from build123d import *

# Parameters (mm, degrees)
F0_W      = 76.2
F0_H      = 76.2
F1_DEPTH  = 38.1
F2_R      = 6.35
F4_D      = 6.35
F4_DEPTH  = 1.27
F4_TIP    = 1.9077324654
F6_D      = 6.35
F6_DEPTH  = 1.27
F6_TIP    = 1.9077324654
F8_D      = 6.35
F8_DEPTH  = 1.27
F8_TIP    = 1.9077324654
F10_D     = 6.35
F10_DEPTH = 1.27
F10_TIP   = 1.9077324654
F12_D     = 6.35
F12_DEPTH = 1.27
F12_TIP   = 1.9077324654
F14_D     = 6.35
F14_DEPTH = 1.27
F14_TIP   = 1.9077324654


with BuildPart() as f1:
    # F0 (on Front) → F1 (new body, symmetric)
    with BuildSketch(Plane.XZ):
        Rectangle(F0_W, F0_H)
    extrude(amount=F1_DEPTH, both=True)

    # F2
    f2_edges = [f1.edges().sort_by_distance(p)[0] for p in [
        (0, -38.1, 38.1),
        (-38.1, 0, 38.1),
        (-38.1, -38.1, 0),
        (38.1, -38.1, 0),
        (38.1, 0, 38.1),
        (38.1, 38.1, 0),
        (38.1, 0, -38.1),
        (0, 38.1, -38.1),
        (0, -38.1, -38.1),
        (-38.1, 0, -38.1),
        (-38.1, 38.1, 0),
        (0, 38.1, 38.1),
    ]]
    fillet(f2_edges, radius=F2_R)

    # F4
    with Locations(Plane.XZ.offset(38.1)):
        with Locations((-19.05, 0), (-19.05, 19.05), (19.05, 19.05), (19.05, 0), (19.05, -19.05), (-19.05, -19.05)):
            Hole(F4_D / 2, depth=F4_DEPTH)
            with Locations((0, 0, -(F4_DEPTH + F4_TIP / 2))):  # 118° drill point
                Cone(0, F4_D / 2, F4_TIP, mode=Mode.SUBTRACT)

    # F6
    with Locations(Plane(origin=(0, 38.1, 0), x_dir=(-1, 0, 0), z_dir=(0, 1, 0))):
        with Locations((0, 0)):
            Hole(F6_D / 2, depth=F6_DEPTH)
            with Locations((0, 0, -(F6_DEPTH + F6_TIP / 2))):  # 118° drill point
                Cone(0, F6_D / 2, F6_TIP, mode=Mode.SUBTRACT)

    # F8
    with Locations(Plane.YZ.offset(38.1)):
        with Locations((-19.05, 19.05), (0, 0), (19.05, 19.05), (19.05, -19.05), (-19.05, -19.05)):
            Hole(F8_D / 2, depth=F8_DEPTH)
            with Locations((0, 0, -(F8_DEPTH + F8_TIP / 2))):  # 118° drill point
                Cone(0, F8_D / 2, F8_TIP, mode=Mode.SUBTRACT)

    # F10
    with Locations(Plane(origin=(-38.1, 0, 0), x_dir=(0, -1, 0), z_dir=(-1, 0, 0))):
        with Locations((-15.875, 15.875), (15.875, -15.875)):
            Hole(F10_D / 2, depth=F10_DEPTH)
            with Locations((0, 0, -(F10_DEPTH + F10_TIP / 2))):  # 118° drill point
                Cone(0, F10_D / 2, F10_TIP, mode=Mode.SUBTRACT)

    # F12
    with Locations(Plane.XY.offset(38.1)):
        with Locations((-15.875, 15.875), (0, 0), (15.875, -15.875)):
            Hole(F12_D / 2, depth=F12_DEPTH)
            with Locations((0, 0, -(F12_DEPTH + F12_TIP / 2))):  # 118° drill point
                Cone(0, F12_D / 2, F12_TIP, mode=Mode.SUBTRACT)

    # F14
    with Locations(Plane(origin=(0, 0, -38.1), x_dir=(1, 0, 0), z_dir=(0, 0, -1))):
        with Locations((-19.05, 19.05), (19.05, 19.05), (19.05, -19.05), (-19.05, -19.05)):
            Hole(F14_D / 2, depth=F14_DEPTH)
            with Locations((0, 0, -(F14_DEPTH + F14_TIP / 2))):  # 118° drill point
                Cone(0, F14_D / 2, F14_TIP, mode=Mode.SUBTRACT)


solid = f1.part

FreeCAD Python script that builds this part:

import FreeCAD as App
import Part
import Sketcher
Q = App.Units.Quantity


def add_polygon(sketch, points):
    """Adds a closed chain of lines whose ends are joined by coincident constraints."""
    first, n = sketch.GeometryCount, len(points)
    for a, b in zip(points, points[1:] + points[:1]):
        sketch.addGeometry(Part.LineSegment(App.Vector(*a, 0), App.Vector(*b, 0)), False)
    for i in range(n):
        sketch.addConstraint(Sketcher.Constraint("Coincident", first + i, 2, first + (i + 1) % n, 1))

doc = App.newDocument("Part")
params = doc.addObject("Spreadsheet::Sheet", "Params")
for row, (alias, value) in enumerate([
    ("sketch1_width", "3 in"),
    ("pad1_length", "3 in"),
    ("fillet_radius", "0.25 in"),
    ("sketch2_diameter", "0.25 in"),
    ("hole_diameter", "0.25 in"),
    ("hole_depth", "0.05 in"),
    ("sketch3_diameter", "0.25 in"),
    ("hole2_diameter", "0.25 in"),
    ("hole2_depth", "0.05 in"),
    ("sketch4_diameter", "0.25 in"),
    ("hole3_diameter", "0.25 in"),
    ("hole3_depth", "0.05 in"),
    ("sketch5_diameter", "0.25 in"),
    ("hole4_diameter", "0.25 in"),
    ("hole4_depth", "0.05 in"),
    ("sketch6_diameter", "0.25 in"),
    ("hole5_diameter", "0.25 in"),
    ("hole5_depth", "0.05 in"),
    ("sketch7_diameter", "0.25 in"),
    ("hole6_diameter", "0.25 in"),
    ("hole6_depth", "0.05 in"),
], start=1):
    params.set(f"A{row}", alias)
    params.set(f"B{row}", "=" + value)
    params.setAlias(f"B{row}", alias)

body = doc.addObject("PartDesign::Body", "Body")

sketch1 = body.newObject("Sketcher::SketchObject", "Sketch")
sketch1.AttachmentSupport = (doc.getObject("XZ_Plane"), [""])
sketch1.MapMode = "FlatFace"
add_polygon(sketch1, [(-38, 38), (-38, -38), (38, -38), (38, 38)])
sketch1.addConstraint([
    Sketcher.Constraint("Vertical", 0),
    Sketcher.Constraint("Horizontal", 1),
    Sketcher.Constraint("Vertical", 2),
    Sketcher.Constraint("Horizontal", 3),
    Sketcher.Constraint("Symmetric", 0, 2, 2, 2, -1, 1),
    Sketcher.Constraint("Equal", 3, 0),
    Sketcher.Constraint("DistanceX", 1, 1, 1, 2, Q("3 in")),
])
sketch1.setExpression("Constraints[10]", "Params.sketch1_width")
pad1 = body.newObject("PartDesign::Pad", "Pad")
pad1.Profile = sketch1
pad1.setExpression("Length", "Params.pad1_length")
pad1.Midplane = True
doc.recompute()

fillet = body.newObject("PartDesign::Fillet", "Fillet")
fillet.Base = (pad1, ["Edge1"])
fillet.UseAllEdges = True
fillet.setExpression("Radius", "Params.fillet_radius")

sketch2 = body.newObject("Sketcher::SketchObject", "Sketch001")
sketch2.AttachmentSupport = (doc.getObject("XZ_Plane"), [""])
sketch2.MapMode = "FlatFace"
sketch2.AttachmentOffset = App.Placement(App.Vector(0, 0, 1.5 * 25.4), App.Rotation())
sketch2.addGeometry([
    Part.Circle(App.Vector(-19.1, 0, 0), App.Vector(0, 0, 1), 3.2),
    Part.Circle(App.Vector(-19.1, 19.1, 0), App.Vector(0, 0, 1), 3.2),
    Part.Circle(App.Vector(19.1, 19.1, 0), App.Vector(0, 0, 1), 3.2),
    Part.Circle(App.Vector(19.1, 0, 0), App.Vector(0, 0, 1), 3.2),
    Part.Circle(App.Vector(19.1, -19.1, 0), App.Vector(0, 0, 1), 3.2),
    Part.Circle(App.Vector(-19.1, -19.1, 0), App.Vector(0, 0, 1), 3.2),
], False)
sketch2.addConstraint([
    Sketcher.Constraint("Equal", 0, 1),
    Sketcher.Constraint("Equal", 1, 2),
    Sketcher.Constraint("Equal", 2, 3),
    Sketcher.Constraint("Equal", 3, 4),
    Sketcher.Constraint("Equal", 4, 5),
    Sketcher.Constraint("Symmetric", 0, 3, 3, 3, -1, 1),
    Sketcher.Constraint("Symmetric", 1, 3, 4, 3, -1, 1),
    Sketcher.Constraint("Symmetric", 2, 3, 5, 3, -1, 1),
    Sketcher.Constraint("Symmetric", 1, 3, 2, 3, -2),
    Sketcher.Constraint("PointOnObject", 0, 3, -1),
    Sketcher.Constraint("Vertical", 0, 3, 1, 3),
    Sketcher.Constraint("Diameter", 0, Q("0.25 in")),
    Sketcher.Constraint("DistanceX", 1, 3, 2, 3, Q("1.5 in")),
    Sketcher.Constraint("DistanceY", 4, 3, 2, 3, Q("1.5 in")),
])
sketch2.setExpression("Constraints[11]", "Params.sketch2_diameter")
doc.recompute()
hole = body.newObject("PartDesign::Hole", "Hole")
hole.Profile = sketch2
hole.ThreadType = "None"
hole.setExpression("Diameter", "Params.hole_diameter")
hole.DepthType = "Dimension"
hole.setExpression("Depth", "Params.hole_depth")
hole.DrillPoint = "Angled"
hole.DrillPointAngle = 118

sketch3 = body.newObject("Sketcher::SketchObject", "Sketch002")
sketch3.AttachmentSupport = (doc.getObject("XZ_Plane"), [""])
sketch3.MapMode = "FlatFace"
sketch3.AttachmentOffset = App.Placement(App.Vector(0, 0, -1.5 * 25.4), App.Rotation())
sketch3.addGeometry(Part.Circle(App.Vector(0, 0, 0), App.Vector(0, 0, 1), 3.2), False)
sketch3.addConstraint([
    Sketcher.Constraint("Coincident", 0, 3, -1, 1),
    Sketcher.Constraint("Diameter", 0, Q("0.25 in")),
])
sketch3.setExpression("Constraints[1]", "Params.sketch3_diameter")
doc.recompute()
hole2 = body.newObject("PartDesign::Hole", "Hole001")
hole2.Profile = sketch3
hole2.ThreadType = "None"
hole2.setExpression("Diameter", "Params.hole2_diameter")
hole2.DepthType = "Dimension"
hole2.setExpression("Depth", "Params.hole2_depth")
hole2.DrillPoint = "Angled"
hole2.DrillPointAngle = 118
hole2.Reversed = True

sketch4 = body.newObject("Sketcher::SketchObject", "Sketch003")
sketch4.AttachmentSupport = (doc.getObject("YZ_Plane"), [""])
sketch4.MapMode = "FlatFace"
sketch4.AttachmentOffset = App.Placement(App.Vector(0, 0, 1.5 * 25.4), App.Rotation())
sketch4.addGeometry([
    Part.Circle(App.Vector(-19.1, 19.1, 0), App.Vector(0, 0, 1), 3.2),
    Part.Circle(App.Vector(0, 0, 0), App.Vector(0, 0, 1), 3.2),
    Part.Circle(App.Vector(19.1, 19.1, 0), App.Vector(0, 0, 1), 3.2),
    Part.Circle(App.Vector(19.1, -19.1, 0), App.Vector(0, 0, 1), 3.2),
    Part.Circle(App.Vector(-19.1, -19.1, 0), App.Vector(0, 0, 1), 3.2),
], False)
sketch4.addConstraint([
    Sketcher.Constraint("Coincident", 1, 3, -1, 1),
    Sketcher.Constraint("Equal", 0, 1),
    Sketcher.Constraint("Equal", 1, 2),
    Sketcher.Constraint("Equal", 2, 3),
    Sketcher.Constraint("Equal", 3, 4),
    Sketcher.Constraint("Symmetric", 0, 3, 3, 3, -1, 1),
    Sketcher.Constraint("Symmetric", 2, 3, 4, 3, -1, 1),
    Sketcher.Constraint("Symmetric", 0, 3, 2, 3, -2),
    Sketcher.Constraint("Diameter", 0, Q("0.25 in")),
    Sketcher.Constraint("DistanceX", 0, 3, 2, 3, Q("1.5 in")),
    Sketcher.Constraint("DistanceY", 3, 3, 2, 3, Q("1.5 in")),
])
sketch4.setExpression("Constraints[8]", "Params.sketch4_diameter")
doc.recompute()
hole3 = body.newObject("PartDesign::Hole", "Hole002")
hole3.Profile = sketch4
hole3.ThreadType = "None"
hole3.setExpression("Diameter", "Params.hole3_diameter")
hole3.DepthType = "Dimension"
hole3.setExpression("Depth", "Params.hole3_depth")
hole3.DrillPoint = "Angled"
hole3.DrillPointAngle = 118

sketch5 = body.newObject("Sketcher::SketchObject", "Sketch004")
sketch5.AttachmentSupport = (doc.getObject("YZ_Plane"), [""])
sketch5.MapMode = "FlatFace"
sketch5.AttachmentOffset = App.Placement(App.Vector(0, 0, -1.5 * 25.4), App.Rotation())
sketch5.addGeometry([
    Part.Circle(App.Vector(15.9, 15.9, 0), App.Vector(0, 0, 1), 3.2),
    Part.Circle(App.Vector(-15.9, -15.9, 0), App.Vector(0, 0, 1), 3.2),
], False)
sketch5.addConstraint([
    Sketcher.Constraint("Equal", 0, 1),
    Sketcher.Constraint("Symmetric", 0, 3, 1, 3, -1, 1),
    Sketcher.Constraint("Diameter", 0, Q("0.25 in")),
    Sketcher.Constraint("DistanceX", 1, 3, 0, 3, Q("1.25 in")),
    Sketcher.Constraint("DistanceY", 1, 3, 0, 3, Q("1.25 in")),
])
sketch5.setExpression("Constraints[2]", "Params.sketch5_diameter")
doc.recompute()
hole4 = body.newObject("PartDesign::Hole", "Hole003")
hole4.Profile = sketch5
hole4.ThreadType = "None"
hole4.setExpression("Diameter", "Params.hole4_diameter")
hole4.DepthType = "Dimension"
hole4.setExpression("Depth", "Params.hole4_depth")
hole4.DrillPoint = "Angled"
hole4.DrillPointAngle = 118
hole4.Reversed = True

sketch6 = body.newObject("Sketcher::SketchObject", "Sketch005")
sketch6.AttachmentSupport = (doc.getObject("XY_Plane"), [""])
sketch6.MapMode = "FlatFace"
sketch6.AttachmentOffset = App.Placement(App.Vector(0, 0, 1.5 * 25.4), App.Rotation())
sketch6.addGeometry([
    Part.Circle(App.Vector(-15.9, 15.9, 0), App.Vector(0, 0, 1), 3.2),
    Part.Circle(App.Vector(0, 0, 0), App.Vector(0, 0, 1), 3.2),
    Part.Circle(App.Vector(15.9, -15.9, 0), App.Vector(0, 0, 1), 3.2),
], False)
sketch6.addConstraint([
    Sketcher.Constraint("Coincident", 1, 3, -1, 1),
    Sketcher.Constraint("Equal", 0, 1),
    Sketcher.Constraint("Equal", 1, 2),
    Sketcher.Constraint("Symmetric", 0, 3, 2, 3, -1, 1),
    Sketcher.Constraint("Diameter", 0, Q("0.25 in")),
    Sketcher.Constraint("DistanceX", 0, 3, 2, 3, Q("1.25 in")),
    Sketcher.Constraint("DistanceY", 2, 3, 0, 3, Q("1.25 in")),
])
sketch6.setExpression("Constraints[4]", "Params.sketch6_diameter")
doc.recompute()
hole5 = body.newObject("PartDesign::Hole", "Hole004")
hole5.Profile = sketch6
hole5.ThreadType = "None"
hole5.setExpression("Diameter", "Params.hole5_diameter")
hole5.DepthType = "Dimension"
hole5.setExpression("Depth", "Params.hole5_depth")
hole5.DrillPoint = "Angled"
hole5.DrillPointAngle = 118

sketch7 = body.newObject("Sketcher::SketchObject", "Sketch006")
sketch7.AttachmentSupport = (doc.getObject("XY_Plane"), [""])
sketch7.MapMode = "FlatFace"
sketch7.AttachmentOffset = App.Placement(App.Vector(0, 0, -1.5 * 25.4), App.Rotation())
sketch7.addGeometry([
    Part.Circle(App.Vector(-19.1, -19.1, 0), App.Vector(0, 0, 1), 3.2),
    Part.Circle(App.Vector(19.1, -19.1, 0), App.Vector(0, 0, 1), 3.2),
    Part.Circle(App.Vector(19.1, 19.1, 0), App.Vector(0, 0, 1), 3.2),
    Part.Circle(App.Vector(-19.1, 19.1, 0), App.Vector(0, 0, 1), 3.2),
], False)
sketch7.addConstraint([
    Sketcher.Constraint("Equal", 0, 1),
    Sketcher.Constraint("Equal", 1, 2),
    Sketcher.Constraint("Equal", 2, 3),
    Sketcher.Constraint("Symmetric", 0, 3, 2, 3, -1, 1),
    Sketcher.Constraint("Symmetric", 1, 3, 3, 3, -1, 1),
    Sketcher.Constraint("Symmetric", 0, 3, 1, 3, -2),
    Sketcher.Constraint("Diameter", 0, Q("0.25 in")),
    Sketcher.Constraint("DistanceX", 0, 3, 1, 3, Q("1.5 in")),
    Sketcher.Constraint("DistanceY", 1, 3, 2, 3, Q("1.5 in")),
])
sketch7.setExpression("Constraints[6]", "Params.sketch7_diameter")
doc.recompute()
hole6 = body.newObject("PartDesign::Hole", "Hole005")
hole6.Profile = sketch7
hole6.ThreadType = "None"
hole6.setExpression("Diameter", "Params.hole6_diameter")
hole6.DepthType = "Dimension"
hole6.setExpression("Depth", "Params.hole6_depth")
hole6.DrillPoint = "Angled"
hole6.DrillPointAngle = 118
hole6.Reversed = True

doc.recompute()
